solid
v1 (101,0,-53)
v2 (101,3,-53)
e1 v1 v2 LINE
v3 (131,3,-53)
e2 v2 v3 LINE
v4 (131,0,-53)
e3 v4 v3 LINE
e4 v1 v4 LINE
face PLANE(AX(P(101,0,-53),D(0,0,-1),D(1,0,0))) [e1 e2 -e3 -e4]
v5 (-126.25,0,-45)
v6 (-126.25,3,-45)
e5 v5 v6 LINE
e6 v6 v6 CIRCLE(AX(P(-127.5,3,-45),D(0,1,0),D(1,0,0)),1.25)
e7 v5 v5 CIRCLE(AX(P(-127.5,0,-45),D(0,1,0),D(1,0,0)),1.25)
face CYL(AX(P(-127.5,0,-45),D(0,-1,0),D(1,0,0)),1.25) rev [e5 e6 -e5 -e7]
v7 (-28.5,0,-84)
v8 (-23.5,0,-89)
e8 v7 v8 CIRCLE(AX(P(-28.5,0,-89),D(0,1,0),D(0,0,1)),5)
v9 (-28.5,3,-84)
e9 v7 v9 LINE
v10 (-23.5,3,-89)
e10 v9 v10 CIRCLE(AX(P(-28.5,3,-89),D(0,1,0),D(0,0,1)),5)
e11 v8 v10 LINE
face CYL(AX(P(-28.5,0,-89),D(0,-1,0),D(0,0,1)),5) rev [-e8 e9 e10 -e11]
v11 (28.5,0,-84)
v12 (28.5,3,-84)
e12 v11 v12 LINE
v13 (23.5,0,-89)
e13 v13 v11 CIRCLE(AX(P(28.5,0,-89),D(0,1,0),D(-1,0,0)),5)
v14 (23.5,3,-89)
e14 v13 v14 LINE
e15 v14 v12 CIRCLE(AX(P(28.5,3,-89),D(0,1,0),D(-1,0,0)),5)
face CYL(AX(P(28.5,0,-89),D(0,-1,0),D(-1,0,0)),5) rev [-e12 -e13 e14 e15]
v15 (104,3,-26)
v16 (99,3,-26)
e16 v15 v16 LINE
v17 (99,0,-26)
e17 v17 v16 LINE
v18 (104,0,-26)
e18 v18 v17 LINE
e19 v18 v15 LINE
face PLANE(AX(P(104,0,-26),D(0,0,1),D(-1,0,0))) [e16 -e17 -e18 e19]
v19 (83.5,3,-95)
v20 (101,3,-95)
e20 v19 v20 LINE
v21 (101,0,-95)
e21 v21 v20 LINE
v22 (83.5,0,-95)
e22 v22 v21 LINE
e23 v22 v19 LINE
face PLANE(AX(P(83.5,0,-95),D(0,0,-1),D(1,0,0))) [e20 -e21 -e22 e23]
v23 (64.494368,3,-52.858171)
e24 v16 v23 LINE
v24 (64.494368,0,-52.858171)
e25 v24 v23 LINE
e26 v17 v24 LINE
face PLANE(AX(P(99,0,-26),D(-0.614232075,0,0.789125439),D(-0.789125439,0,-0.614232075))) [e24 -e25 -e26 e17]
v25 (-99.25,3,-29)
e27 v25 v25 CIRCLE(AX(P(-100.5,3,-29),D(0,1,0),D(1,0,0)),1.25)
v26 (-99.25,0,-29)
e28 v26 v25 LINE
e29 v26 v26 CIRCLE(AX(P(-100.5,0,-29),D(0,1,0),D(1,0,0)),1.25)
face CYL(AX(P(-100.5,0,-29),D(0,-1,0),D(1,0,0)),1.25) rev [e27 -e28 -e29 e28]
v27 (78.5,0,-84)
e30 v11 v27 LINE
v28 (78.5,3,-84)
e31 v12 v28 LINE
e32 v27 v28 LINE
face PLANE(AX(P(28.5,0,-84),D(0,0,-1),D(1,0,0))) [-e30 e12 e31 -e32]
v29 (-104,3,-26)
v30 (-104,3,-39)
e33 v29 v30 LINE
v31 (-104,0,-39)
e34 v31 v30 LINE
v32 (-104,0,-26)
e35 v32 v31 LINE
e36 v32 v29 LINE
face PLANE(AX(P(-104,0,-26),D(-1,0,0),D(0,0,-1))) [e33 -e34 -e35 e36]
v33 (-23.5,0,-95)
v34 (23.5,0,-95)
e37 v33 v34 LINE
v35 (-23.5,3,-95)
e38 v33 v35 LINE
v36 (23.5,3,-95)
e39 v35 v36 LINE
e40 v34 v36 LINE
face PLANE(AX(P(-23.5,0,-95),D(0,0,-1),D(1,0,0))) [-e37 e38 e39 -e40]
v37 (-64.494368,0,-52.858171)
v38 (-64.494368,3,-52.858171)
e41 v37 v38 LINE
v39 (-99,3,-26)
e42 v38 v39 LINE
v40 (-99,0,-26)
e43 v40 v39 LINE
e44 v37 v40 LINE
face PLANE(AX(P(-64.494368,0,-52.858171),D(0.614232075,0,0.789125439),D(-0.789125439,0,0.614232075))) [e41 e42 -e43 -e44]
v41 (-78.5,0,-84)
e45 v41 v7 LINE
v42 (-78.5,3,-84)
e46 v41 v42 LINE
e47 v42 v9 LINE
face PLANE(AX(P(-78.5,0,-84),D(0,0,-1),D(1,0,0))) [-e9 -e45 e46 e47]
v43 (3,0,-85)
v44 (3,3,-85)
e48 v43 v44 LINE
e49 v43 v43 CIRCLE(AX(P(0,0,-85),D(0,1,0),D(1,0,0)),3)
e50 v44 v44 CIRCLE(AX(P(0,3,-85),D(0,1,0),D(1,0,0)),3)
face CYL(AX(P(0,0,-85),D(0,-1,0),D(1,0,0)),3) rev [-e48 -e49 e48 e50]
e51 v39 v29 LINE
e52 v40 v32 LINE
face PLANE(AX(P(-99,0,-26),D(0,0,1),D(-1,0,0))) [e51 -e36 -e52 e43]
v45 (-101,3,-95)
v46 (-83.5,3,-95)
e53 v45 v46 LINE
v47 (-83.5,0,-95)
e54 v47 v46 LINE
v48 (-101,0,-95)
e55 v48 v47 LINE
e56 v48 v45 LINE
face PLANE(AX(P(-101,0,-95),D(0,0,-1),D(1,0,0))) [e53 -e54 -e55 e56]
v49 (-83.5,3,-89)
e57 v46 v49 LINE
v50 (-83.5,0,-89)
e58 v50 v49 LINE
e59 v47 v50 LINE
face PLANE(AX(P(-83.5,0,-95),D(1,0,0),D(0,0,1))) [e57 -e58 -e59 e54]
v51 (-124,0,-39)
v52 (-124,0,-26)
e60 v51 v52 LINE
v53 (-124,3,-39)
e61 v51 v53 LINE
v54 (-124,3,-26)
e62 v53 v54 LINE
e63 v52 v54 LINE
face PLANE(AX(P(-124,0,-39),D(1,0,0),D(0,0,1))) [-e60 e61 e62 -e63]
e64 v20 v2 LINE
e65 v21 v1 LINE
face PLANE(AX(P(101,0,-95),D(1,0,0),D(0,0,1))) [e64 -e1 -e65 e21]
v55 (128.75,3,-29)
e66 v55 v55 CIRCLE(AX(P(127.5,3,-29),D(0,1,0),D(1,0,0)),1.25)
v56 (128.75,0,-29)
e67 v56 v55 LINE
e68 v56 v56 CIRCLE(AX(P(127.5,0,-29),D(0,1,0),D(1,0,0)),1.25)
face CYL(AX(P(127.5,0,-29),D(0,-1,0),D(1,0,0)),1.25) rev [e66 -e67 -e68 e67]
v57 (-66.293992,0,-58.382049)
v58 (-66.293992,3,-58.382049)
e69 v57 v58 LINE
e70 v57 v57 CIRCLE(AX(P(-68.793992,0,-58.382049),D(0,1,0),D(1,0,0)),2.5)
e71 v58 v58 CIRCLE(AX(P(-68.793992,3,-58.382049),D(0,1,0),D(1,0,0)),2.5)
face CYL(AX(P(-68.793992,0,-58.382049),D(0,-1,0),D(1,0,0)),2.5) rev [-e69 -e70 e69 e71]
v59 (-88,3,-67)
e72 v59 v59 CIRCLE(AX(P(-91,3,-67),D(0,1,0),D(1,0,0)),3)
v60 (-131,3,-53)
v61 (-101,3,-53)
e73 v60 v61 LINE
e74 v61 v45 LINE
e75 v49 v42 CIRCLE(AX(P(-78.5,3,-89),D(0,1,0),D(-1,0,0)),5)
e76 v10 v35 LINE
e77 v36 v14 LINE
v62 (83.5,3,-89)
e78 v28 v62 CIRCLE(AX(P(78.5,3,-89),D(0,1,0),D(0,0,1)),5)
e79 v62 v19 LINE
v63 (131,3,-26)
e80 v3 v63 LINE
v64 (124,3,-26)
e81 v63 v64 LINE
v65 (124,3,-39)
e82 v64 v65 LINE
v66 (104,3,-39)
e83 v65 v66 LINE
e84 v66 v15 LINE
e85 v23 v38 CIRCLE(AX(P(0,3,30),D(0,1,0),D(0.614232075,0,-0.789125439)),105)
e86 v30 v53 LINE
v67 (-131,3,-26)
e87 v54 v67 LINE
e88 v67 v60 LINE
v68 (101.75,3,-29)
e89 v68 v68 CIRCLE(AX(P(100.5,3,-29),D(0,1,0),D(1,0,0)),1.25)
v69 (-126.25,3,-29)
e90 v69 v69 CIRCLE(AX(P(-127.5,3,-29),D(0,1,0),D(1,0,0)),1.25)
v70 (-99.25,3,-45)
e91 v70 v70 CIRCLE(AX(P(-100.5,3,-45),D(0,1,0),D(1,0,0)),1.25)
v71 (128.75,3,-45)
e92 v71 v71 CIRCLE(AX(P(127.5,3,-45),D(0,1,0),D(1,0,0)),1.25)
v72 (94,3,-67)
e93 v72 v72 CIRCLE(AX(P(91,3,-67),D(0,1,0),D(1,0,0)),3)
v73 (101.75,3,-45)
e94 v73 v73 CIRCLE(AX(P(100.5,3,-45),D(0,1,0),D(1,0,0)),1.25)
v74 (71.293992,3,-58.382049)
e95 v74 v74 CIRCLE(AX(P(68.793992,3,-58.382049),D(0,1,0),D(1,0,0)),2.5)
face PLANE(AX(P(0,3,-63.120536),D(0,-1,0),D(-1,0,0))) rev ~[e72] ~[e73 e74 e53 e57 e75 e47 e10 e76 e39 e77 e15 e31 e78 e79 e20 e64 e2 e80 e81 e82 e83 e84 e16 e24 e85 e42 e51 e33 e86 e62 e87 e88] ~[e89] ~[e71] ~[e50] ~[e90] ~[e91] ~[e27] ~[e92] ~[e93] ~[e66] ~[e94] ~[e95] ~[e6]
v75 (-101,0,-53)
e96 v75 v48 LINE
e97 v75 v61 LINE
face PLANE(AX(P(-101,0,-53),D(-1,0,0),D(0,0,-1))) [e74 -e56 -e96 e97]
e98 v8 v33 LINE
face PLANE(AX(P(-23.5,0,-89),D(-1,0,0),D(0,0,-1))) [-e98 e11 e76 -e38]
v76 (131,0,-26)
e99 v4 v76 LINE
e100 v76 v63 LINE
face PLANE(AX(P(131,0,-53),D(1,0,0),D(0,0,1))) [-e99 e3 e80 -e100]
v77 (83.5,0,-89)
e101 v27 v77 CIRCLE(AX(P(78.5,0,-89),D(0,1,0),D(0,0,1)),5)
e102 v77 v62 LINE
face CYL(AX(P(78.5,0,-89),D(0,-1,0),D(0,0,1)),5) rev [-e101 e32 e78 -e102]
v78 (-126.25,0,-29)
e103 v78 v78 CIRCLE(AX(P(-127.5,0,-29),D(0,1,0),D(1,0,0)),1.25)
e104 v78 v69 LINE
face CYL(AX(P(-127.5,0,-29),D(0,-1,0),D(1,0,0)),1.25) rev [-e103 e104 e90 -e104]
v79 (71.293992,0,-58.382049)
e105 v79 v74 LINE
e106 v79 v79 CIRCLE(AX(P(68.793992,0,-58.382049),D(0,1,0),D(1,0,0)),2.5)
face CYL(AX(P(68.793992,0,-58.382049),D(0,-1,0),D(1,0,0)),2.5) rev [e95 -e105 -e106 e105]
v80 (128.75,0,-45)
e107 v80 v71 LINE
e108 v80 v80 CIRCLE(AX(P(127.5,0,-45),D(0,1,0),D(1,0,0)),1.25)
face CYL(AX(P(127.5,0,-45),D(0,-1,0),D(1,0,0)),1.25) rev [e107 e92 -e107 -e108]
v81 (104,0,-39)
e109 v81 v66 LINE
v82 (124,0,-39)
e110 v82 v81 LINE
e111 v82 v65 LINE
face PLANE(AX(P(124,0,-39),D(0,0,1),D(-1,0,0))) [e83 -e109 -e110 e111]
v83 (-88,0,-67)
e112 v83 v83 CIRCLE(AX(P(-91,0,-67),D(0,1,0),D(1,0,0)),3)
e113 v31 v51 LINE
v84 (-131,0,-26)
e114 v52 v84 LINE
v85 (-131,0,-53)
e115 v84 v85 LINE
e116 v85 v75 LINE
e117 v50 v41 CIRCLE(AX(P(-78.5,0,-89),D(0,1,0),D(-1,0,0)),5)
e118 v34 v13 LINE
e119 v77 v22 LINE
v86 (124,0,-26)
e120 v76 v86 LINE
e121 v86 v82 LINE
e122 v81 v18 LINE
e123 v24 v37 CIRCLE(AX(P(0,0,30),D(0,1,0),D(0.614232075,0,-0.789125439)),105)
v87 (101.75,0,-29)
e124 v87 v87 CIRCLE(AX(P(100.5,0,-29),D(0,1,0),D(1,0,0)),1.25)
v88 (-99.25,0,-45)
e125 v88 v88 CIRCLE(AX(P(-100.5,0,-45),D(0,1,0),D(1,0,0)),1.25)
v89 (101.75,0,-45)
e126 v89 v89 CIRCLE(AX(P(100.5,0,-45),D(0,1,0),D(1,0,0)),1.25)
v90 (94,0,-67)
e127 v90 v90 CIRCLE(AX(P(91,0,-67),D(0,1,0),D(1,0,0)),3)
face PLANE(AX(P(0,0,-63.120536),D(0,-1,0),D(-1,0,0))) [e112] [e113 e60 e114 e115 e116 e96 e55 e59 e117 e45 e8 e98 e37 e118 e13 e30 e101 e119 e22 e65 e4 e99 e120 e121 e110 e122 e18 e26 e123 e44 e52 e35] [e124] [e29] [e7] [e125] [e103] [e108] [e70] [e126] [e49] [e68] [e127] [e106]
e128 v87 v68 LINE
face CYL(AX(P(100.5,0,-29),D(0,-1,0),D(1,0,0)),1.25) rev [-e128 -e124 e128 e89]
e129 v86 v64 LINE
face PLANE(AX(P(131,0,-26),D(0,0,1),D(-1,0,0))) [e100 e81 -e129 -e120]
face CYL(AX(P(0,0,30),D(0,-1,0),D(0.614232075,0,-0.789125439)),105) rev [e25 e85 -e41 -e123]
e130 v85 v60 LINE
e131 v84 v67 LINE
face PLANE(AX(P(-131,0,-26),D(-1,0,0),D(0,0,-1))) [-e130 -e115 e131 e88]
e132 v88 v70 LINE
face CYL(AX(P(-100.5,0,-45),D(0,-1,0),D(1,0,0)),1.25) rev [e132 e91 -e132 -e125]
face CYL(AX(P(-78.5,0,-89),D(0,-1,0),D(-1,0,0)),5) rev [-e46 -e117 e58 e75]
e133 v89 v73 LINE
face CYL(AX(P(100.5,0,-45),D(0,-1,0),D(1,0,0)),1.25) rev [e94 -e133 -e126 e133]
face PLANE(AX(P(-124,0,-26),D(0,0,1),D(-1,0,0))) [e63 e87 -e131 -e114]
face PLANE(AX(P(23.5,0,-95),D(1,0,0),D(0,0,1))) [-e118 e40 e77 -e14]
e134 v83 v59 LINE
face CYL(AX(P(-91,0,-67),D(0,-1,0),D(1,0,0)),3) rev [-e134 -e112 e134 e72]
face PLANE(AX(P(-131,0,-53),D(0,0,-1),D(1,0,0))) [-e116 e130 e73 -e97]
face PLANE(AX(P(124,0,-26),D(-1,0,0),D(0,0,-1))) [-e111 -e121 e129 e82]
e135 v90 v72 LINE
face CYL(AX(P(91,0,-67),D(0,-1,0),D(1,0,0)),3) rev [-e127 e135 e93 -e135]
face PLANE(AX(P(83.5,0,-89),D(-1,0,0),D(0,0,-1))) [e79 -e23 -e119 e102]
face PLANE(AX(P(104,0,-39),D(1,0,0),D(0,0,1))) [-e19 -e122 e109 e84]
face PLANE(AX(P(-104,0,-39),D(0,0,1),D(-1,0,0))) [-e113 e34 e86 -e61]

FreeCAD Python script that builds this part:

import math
import FreeCAD as App
import Part
import Sketcher

doc = App.newDocument("Part")
body = doc.addObject("PartDesign::Body", "Body")

# Sketch on XZ plane
sketch1 = doc.addObject("Sketcher::SketchObject", "Sketch")
body.addObject(sketch1)
sketch1.AttachmentSupport = (doc.XZ_Plane, [""])
sketch1.MapMode = "FlatFace"
sketch1.addGeometry(Part.LineSegment(App.Vector(-99, -26, 0), App.Vector(-64.494368, -52.858171, 0)), False)
sketch1.addGeometry(Part.ArcOfCircle(Part.Circle(App.Vector(0, 30, 0), App.Vector(0, 0, 1), 105), math.radians(-127.896143), math.radians(-52.103857)), False)
sketch1.addGeometry(Part.LineSegment(App.Vector(64.494368, -52.858171, 0), App.Vector(99, -26, 0)), False)
sketch1.addGeometry(Part.LineSegment(App.Vector(99, -26, 0), App.Vector(104, -26, 0)), False)
sketch1.addGeometry(Part.LineSegment(App.Vector(104, -26, 0), App.Vector(104, -39, 0)), False)
sketch1.addGeometry(Part.LineSegment(App.Vector(104, -39, 0), App.Vector(124, -39, 0)), False)
sketch1.addGeometry(Part.LineSegment(App.Vector(124, -39, 0), App.Vector(124, -26, 0)), False)
sketch1.addGeometry(Part.LineSegment(App.Vector(124, -26, 0), App.Vector(131, -26, 0)), False)
sketch1.addGeometry(Part.LineSegment(App.Vector(131, -26, 0), App.Vector(131, -53, 0)), False)
sketch1.addGeometry(Part.LineSegment(App.Vector(131, -53, 0), App.Vector(101, -53, 0)), False)
sketch1.addGeometry(Part.LineSegment(App.Vector(101, -53, 0), App.Vector(101, -95, 0)), False)
sketch1.addGeometry(Part.LineSegment(App.Vector(101, -95, 0), App.Vector(83.5, -95, 0)), False)
sketch1.addGeometry(Part.LineSegment(App.Vector(83.5, -95, 0), App.Vector(83.5, -89, 0)), False)
sketch1.addGeometry(Part.ArcOfCircle(Part.Circle(App.Vector(78.5, -89, 0), App.Vector(0, 0, 1), 5), math.radians(0), math.radians(90)), False)
sketch1.addGeometry(Part.LineSegment(App.Vector(78.5, -84, 0), App.Vector(28.5, -84, 0)), False)
sketch1.addGeometry(Part.ArcOfCircle(Part.Circle(App.Vector(28.5, -89, 0), App.Vector(0, 0, 1), 5), math.radians(90), math.radians(180)), False)
sketch1.addGeometry(Part.LineSegment(App.Vector(23.5, -89, 0), App.Vector(23.5, -95, 0)), False)
sketch1.addGeometry(Part.LineSegment(App.Vector(23.5, -95, 0), App.Vector(-23.5, -95, 0)), False)
sketch1.addGeometry(Part.LineSegment(App.Vector(-23.5, -95, 0), App.Vector(-23.5, -89, 0)), False)
sketch1.addGeometry(Part.ArcOfCircle(Part.Circle(App.Vector(-28.5, -89, 0), App.Vector(0, 0, 1), 5), math.radians(0), math.radians(90)), False)
sketch1.addGeometry(Part.LineSegment(App.Vector(-28.5, -84, 0), App.Vector(-78.5, -84, 0)), False)
sketch1.addGeometry(Part.ArcOfCircle(Part.Circle(App.Vector(-78.5, -89, 0), App.Vector(0, 0, 1), 5), math.radians(90), math.radians(180)), False)
sketch1.addGeometry(Part.LineSegment(App.Vector(-83.5, -89, 0), App.Vector(-83.5, -95, 0)), False)
sketch1.addGeometry(Part.LineSegment(App.Vector(-83.5, -95, 0), App.Vector(-101, -95, 0)), False)
sketch1.addGeometry(Part.LineSegment(App.Vector(-101, -95, 0), App.Vector(-101, -53, 0)), False)
sketch1.addGeometry(Part.LineSegment(App.Vector(-101, -53, 0), App.Vector(-131, -53, 0)), False)
sketch1.addGeometry(Part.LineSegment(App.Vector(-131, -53, 0), App.Vector(-131, -26, 0)), False)
sketch1.addGeometry(Part.LineSegment(App.Vector(-131, -26, 0), App.Vector(-124, -26, 0)), False)
sketch1.addGeometry(Part.LineSegment(App.Vector(-124, -26, 0), App.Vector(-124, -39, 0)), False)
sketch1.addGeometry(Part.LineSegment(App.Vector(-124, -39, 0), App.Vector(-104, -39, 0)), False)
sketch1.addGeometry(Part.LineSegment(App.Vector(-104, -39, 0), App.Vector(-104, -26, 0)), False)
sketch1.addGeometry(Part.LineSegment(App.Vector(-104, -26, 0), App.Vector(-99, -26, 0)), False)
sketch1.addGeometry(Part.Circle(App.Vector(127.5, -29, 0), App.Vector(0, 0, 1), 1.25), False)
sketch1.addGeometry(Part.Circle(App.Vector(100.5, -29, 0), App.Vector(0, 0, 1), 1.25), False)
sketch1.addGeometry(Part.Circle(App.Vector(127.5, -45, 0), App.Vector(0, 0, 1), 1.25), False)
sketch1.addGeometry(Part.Circle(App.Vector(100.5, -45, 0), App.Vector(0, 0, 1), 1.25), False)
sketch1.addGeometry(Part.Circle(App.Vector(-100.5, -29, 0), App.Vector(0, 0, 1), 1.25), False)
sketch1.addGeometry(Part.Circle(App.Vector(-127.5, -29, 0), App.Vector(0, 0, 1), 1.25), False)
sketch1.addGeometry(Part.Circle(App.Vector(-100.5, -45, 0), App.Vector(0, 0, 1), 1.25), False)
sketch1.addGeometry(Part.Circle(App.Vector(-127.5, -45, 0), App.Vector(0, 0, 1), 1.25), False)
sketch1.addGeometry(Part.Circle(App.Vector(68.793992, -58.382049, 0), App.Vector(0, 0, 1), 2.5), False)
sketch1.addGeometry(Part.Circle(App.Vector(91, -67, 0), App.Vector(0, 0, 1), 3), False)
sketch1.addGeometry(Part.Circle(App.Vector(-68.793992, -58.382049, 0), App.Vector(0, 0, 1), 2.5), False)
sketch1.addGeometry(Part.Circle(App.Vector(-91, -67, 0), App.Vector(0, 0, 1), 3), False)
sketch1.addGeometry(Part.Circle(App.Vector(0, -85, 0), App.Vector(0, 0, 1), 3), False)
sketch1.addConstraint(Sketcher.Constraint("Tangent", 0, 2, 1, 1))
sketch1.addConstraint(Sketcher.Constraint("Tangent", 1, 2, 2, 1))
sketch1.addConstraint(Sketcher.Constraint("Coincident", 2, 2, 3, 1))
sketch1.addConstraint(Sketcher.Constraint("Coincident", 3, 2, 4, 1))
sketch1.addConstraint(Sketcher.Constraint("Coincident", 4, 2, 5, 1))
sketch1.addConstraint(Sketcher.Constraint("Coincident", 5, 2, 6, 1))
sketch1.addConstraint(Sketcher.Constraint("Coincident", 6, 2, 7, 1))
sketch1.addConstraint(Sketcher.Constraint("Coincident", 7, 2, 8, 1))
sketch1.addConstraint(Sketcher.Constraint("Coincident", 8, 2, 9, 1))
sketch1.addConstraint(Sketcher.Constraint("Coincident", 9, 2, 10, 1))
sketch1.addConstraint(Sketcher.Constraint("Coincident", 10, 2, 11, 1))
sketch1.addConstraint(Sketcher.Constraint("Coincident", 11, 2, 12, 1))
sketch1.addConstraint(Sketcher.Constraint("Tangent", 12, 2, 13, 1))
sketch1.addConstraint(Sketcher.Constraint("Tangent", 13, 2, 14, 1))
sketch1.addConstraint(Sketcher.Constraint("Tangent", 14, 2, 15, 1))
sketch1.addConstraint(Sketcher.Constraint("Tangent", 15, 2, 16, 1))
sketch1.addConstraint(Sketcher.Constraint("Coincident", 16, 2, 17, 1))
sketch1.addConstraint(Sketcher.Constraint("Coincident", 17, 2, 18, 1))
sketch1.addConstraint(Sketcher.Constraint("Tangent", 18, 2, 19, 1))
sketch1.addConstraint(Sketcher.Constraint("Tangent", 19, 2, 20, 1))
sketch1.addConstraint(Sketcher.Constraint("Tangent", 20, 2, 21, 1))
sketch1.addConstraint(Sketcher.Constraint("Tangent", 21, 2, 22, 1))
sketch1.addConstraint(Sketcher.Constraint("Coincident", 22, 2, 23, 1))
sketch1.addConstraint(Sketcher.Constraint("Coincident", 23, 2, 24, 1))
sketch1.addConstraint(Sketcher.Constraint("Coincident", 24, 2, 25, 1))
sketch1.addConstraint(Sketcher.Constraint("Coincident", 25, 2, 26, 1))
sketch1.addConstraint(Sketcher.Constraint("Coincident", 26, 2, 27, 1))
sketch1.addConstraint(Sketcher.Constraint("Coincident", 27, 2, 28, 1))
sketch1.addConstraint(Sketcher.Constraint("Coincident", 28, 2, 29, 1))
sketch1.addConstraint(Sketcher.Constraint("Coincident", 29, 2, 30, 1))
sketch1.addConstraint(Sketcher.Constraint("Coincident", 30, 2, 31, 1))
sketch1.addConstraint(Sketcher.Constraint("Coincident", 31, 2, 0, 1))
sketch1.addConstraint(Sketcher.Constraint("Horizontal", 3))
sketch1.addConstraint(Sketcher.Constraint("Vertical", 4))
sketch1.addConstraint(Sketcher.Constraint("Horizontal", 5))
sketch1.addConstraint(Sketcher.Constraint("Vertical", 6))
sketch1.addConstraint(Sketcher.Constraint("Horizontal", 7))
sketch1.addConstraint(Sketcher.Constraint("Vertical", 8))
sketch1.addConstraint(Sketcher.Constraint("Horizontal", 9))
sketch1.addConstraint(Sketcher.Constraint("Vertical", 10))
sketch1.addConstraint(Sketcher.Constraint("Horizontal", 11))
sketch1.addConstraint(Sketcher.Constraint("Vertical", 12))
sketch1.addConstraint(Sketcher.Constraint("Horizontal", 14))
sketch1.addConstraint(Sketcher.Constraint("Vertical", 16))
sketch1.addConstraint(Sketcher.Constraint("Horizontal", 17))
sketch1.addConstraint(Sketcher.Constraint("Vertical", 18))
sketch1.addConstraint(Sketcher.Constraint("Horizontal", 20))
sketch1.addConstraint(Sketcher.Constraint("Vertical", 22))
sketch1.addConstraint(Sketcher.Constraint("Horizontal", 23))
sketch1.addConstraint(Sketcher.Constraint("Vertical", 24))
sketch1.addConstraint(Sketcher.Constraint("Horizontal", 25))
sketch1.addConstraint(Sketcher.Constraint("Vertical", 26))
sketch1.addConstraint(Sketcher.Constraint("Horizontal", 27))
sketch1.addConstraint(Sketcher.Constraint("Vertical", 28))
sketch1.addConstraint(Sketcher.Constraint("Horizontal", 29))
sketch1.addConstraint(Sketcher.Constraint("Vertical", 30))
sketch1.addConstraint(Sketcher.Constraint("Horizontal", 31))
sketch1.addConstraint(Sketcher.Constraint("Equal", 13, 15))
sketch1.addConstraint(Sketcher.Constraint("Equal", 15, 19))
sketch1.addConstraint(Sketcher.Constraint("Equal", 19, 21))
sketch1.addConstraint(Sketcher.Constraint("Equal", 32, 33))
sketch1.addConstraint(Sketcher.Constraint("Equal", 33, 34))
sketch1.addConstraint(Sketcher.Constraint("Equal", 34, 35))
sketch1.addConstraint(Sketcher.Constraint("Equal", 35, 36))
sketch1.addConstraint(Sketcher.Constraint("Equal", 36, 37))
sketch1.addConstraint(Sketcher.Constraint("Equal", 37, 38))
sketch1.addConstraint(Sketcher.Constraint("Equal", 38, 39))
sketch1.addConstraint(Sketcher.Constraint("Equal", 40, 42))
sketch1.addConstraint(Sketcher.Constraint("Equal", 41, 43))
sketch1.addConstraint(Sketcher.Constraint("Equal", 43, 44))
sketch1.addConstraint(Sketcher.Constraint("Symmetric", 15, 3, 19, 3, -2))
sketch1.addConstraint(Sketcher.Constraint("Symmetric", 33, 3, 36, 3, -2))
sketch1.addConstraint(Sketcher.Constraint("Symmetric", 32, 3, 37, 3, -2))
sketch1.addConstraint(Sketcher.Constraint("Symmetric", 35, 3, 38, 3, -2))
sketch1.addConstraint(Sketcher.Constraint("Symmetric", 34, 3, 39, 3, -2))
sketch1.addConstraint(Sketcher.Constraint("Symmetric", 40, 3, 42, 3, -2))
sketch1.addConstraint(Sketcher.Constraint("Symmetric", 41, 3, 43, 3, -2))
sketch1.addConstraint(Sketcher.Constraint("Symmetric", 0, 2, 1, 2, -2))
sketch1.addConstraint(Sketcher.Constraint("Symmetric", 11, 2, 22, 2, -2))
sketch1.addConstraint(Sketcher.Constraint("Symmetric", 9, 2, 24, 2, -2))
sketch1.addConstraint(Sketcher.Constraint("Symmetric", 7, 2, 26, 2, -2))
sketch1.addConstraint(Sketcher.Constraint("Symmetric", 5, 2, 28, 2, -2))
sketch1.addConstraint(Sketcher.Constraint("Symmetric", 3, 2, 30, 2, -2))
sketch1.addConstraint(Sketcher.Constraint("PointOnObject", 44, 3, -2))
sketch1.addConstraint(Sketcher.Constraint("Horizontal", 32, 3, 33, 3))
sketch1.addConstraint(Sketcher.Constraint("Horizontal", 34, 3, 35, 3))
sketch1.addConstraint(Sketcher.Constraint("Horizontal", 3, 2, 6, 2))
sketch1.addConstraint(Sketcher.Constraint("Horizontal", 11, 2, 16, 2))
sketch1.addConstraint(Sketcher.Constraint("Vertical", 32, 3, 34, 3))
sketch1.addConstraint(Sketcher.Constraint("Vertical", 33, 3, 35, 3))
sketch1.addConstraint(Sketcher.Constraint("Diameter", 40, 5.0))
sketch1.addConstraint(Sketcher.Constraint("Diameter", 41, 6.0))
sketch1.addConstraint(Sketcher.Constraint("Radius", 1, 105.0))
sketch1.addConstraint(Sketcher.Constraint("Radius", 13, 5.0))
sketch1.addConstraint(Sketcher.Constraint("Diameter", 32, 2.5))
sketch1.addConstraint(Sketcher.Constraint("DistanceX", 3, 1, 3, 2, 5.0))
sketch1.addConstraint(Sketcher.Constraint("DistanceX", 5, 1, 5, 2, 20.0))
sketch1.addConstraint(Sketcher.Constraint("DistanceX", 7, 1, 7, 2, 7.0))
sketch1.addConstraint(Sketcher.Constraint("DistanceX", 9, 2, 9, 1, 30.0))
sketch1.addConstraint(Sketcher.Constraint("DistanceX", 14, 2, 14, 1, 50.0))
sketch1.addConstraint(Sketcher.Constraint("DistanceX", 17, 2, 17, 1, 47.0))
sketch1.addConstraint(Sketcher.Constraint("DistanceY", 4, 2, 4, 1, 13.0))
sketch1.addConstraint(Sketcher.Constraint("DistanceY", 8, 2, 8, 1, 27.0))
sketch1.addConstraint(Sketcher.Constraint("DistanceY", 10, 2, 10, 1, 42.0))
sketch1.addConstraint(Sketcher.Constraint("DistanceY", 12, 1, 12, 2, 6.0))
sketch1.addConstraint(Sketcher.Constraint("DistanceX", 11, 2, 11, 1, 17.5))
sketch1.addConstraint(Sketcher.Constraint("DistanceY", -1, 1, 1, 3, 30.0))
sketch1.addConstraint(Sketcher.Constraint("DistanceY", 13, 3, -1, 1, 89.0))
sketch1.addConstraint(Sketcher.Constraint("DistanceY", 32, 3, -1, 1, 29.0))
sketch1.addConstraint(Sketcher.Constraint("DistanceY", 34, 3, -1, 1, 45.0))
sketch1.addConstraint(Sketcher.Constraint("DistanceX", -1, 1, 41, 3, 91.0))
sketch1.addConstraint(Sketcher.Constraint("DistanceY", 41, 3, -1, 1, 67.0))
sketch1.addConstraint(Sketcher.Constraint("DistanceY", 44, 3, -1, 1, 85.0))
sketch1.addConstraint(Sketcher.Constraint("DistanceX", 13, 3, 32, 3, 49.0))
sketch1.addConstraint(Sketcher.Constraint("DistanceX", 33, 3, 32, 3, 27.0))
sketch1.addConstraint(Sketcher.Constraint("DistanceY", 40, 3, -1, 1, 58.382049))
sketch1.addConstraint(Sketcher.Constraint("DistanceX", -1, 1, 40, 3, 68.793992))
pad1 = doc.addObject("PartDesign::Pad", "Pad")
body.addObject(pad1)
pad1.Profile = sketch1
pad1.Length = 3
pad1.Reversed = True

doc.recompute()
